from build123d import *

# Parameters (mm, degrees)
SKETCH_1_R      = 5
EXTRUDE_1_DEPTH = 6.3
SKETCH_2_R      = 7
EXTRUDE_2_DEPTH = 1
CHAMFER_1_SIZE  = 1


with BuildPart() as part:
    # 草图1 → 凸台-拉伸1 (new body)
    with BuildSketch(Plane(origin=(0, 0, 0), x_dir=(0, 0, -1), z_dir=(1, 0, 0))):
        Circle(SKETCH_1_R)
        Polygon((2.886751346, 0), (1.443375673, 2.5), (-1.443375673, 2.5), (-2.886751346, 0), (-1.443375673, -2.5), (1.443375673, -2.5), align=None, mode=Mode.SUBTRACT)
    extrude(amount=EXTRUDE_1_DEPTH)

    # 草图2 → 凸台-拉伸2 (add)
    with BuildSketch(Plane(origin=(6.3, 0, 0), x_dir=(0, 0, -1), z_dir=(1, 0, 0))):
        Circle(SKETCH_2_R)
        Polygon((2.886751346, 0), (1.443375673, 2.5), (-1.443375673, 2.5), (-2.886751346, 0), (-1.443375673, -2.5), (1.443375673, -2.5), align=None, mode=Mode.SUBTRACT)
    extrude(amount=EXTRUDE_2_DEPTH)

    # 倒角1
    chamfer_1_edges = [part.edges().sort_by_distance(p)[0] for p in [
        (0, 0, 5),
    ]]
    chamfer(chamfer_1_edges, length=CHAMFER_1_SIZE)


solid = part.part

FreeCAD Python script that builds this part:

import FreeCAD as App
import Part
import Sketcher

V = App.Vector
Q = App.Units.Quantity


def edges_at(feature, points):
    """Names of the edges that pass closest to the given points."""
    edges = feature.Shape.Edges
    near = lambda p: min(range(len(edges)), key=lambda i: edges[i].distToShape(Part.Vertex(*p))[0])
    return sorted({f"Edge{near(p) + 1}" for p in points})

doc = App.newDocument("Part")
body = doc.addObject("PartDesign::Body", "Body")

sketch1 = body.newObject("Sketcher::SketchObject", "Sketch")
sketch1.AttachmentSupport = (doc.getObject("YZ_Plane"), [""])
sketch1.MapMode = "FlatFace"
sketch1.addGeometry(Part.Circle(V(0, 0, 0), V(0, 0, 1), 5), False)
sketch1.addGeometry(Part.LineSegment(V(2.5, -1.4, 0), V(0, -2.9, 0)), False)
sketch1.addGeometry(Part.LineSegment(V(0, -2.9, 0), V(-2.5, -1.4, 0)), False)
sketch1.addGeometry(Part.LineSegment(V(-2.5, -1.4, 0), V(-2.5, 1.4, 0)), False)
sketch1.addGeometry(Part.LineSegment(V(-2.5, 1.4, 0), V(0, 2.9, 0)), False)
sketch1.addGeometry(Part.LineSegment(V(0, 2.9, 0), V(2.5, 1.4, 0)), False)
sketch1.addGeometry(Part.LineSegment(V(2.5, 1.4, 0), V(2.5, -1.4, 0)), False)
sketch1.addConstraint(Sketcher.Constraint("Coincident", 1, 2, 2, 1))
sketch1.addConstraint(Sketcher.Constraint("Coincident", 2, 2, 3, 1))
sketch1.addConstraint(Sketcher.Constraint("Coincident", 3, 2, 4, 1))
sketch1.addConstraint(Sketcher.Constraint("Coincident", 4, 2, 5, 1))
sketch1.addConstraint(Sketcher.Constraint("Coincident", 5, 2, 6, 1))
sketch1.addConstraint(Sketcher.Constraint("Coincident", 6, 2, 1, 1))
sketch1.addConstraint(Sketcher.Constraint("Vertical", 3))
sketch1.addConstraint(Sketcher.Constraint("Vertical", 6))
sketch1.addConstraint(Sketcher.Constraint("Coincident", 0, 3, -1, 1))
sketch1.addConstraint(Sketcher.Constraint("Symmetric", 1, 2, 4, 2, -1, 1))
sketch1.addConstraint(Sketcher.Constraint("Symmetric", 2, 2, 5, 2, -1, 1))
sketch1.addConstraint(Sketcher.Constraint("PointOnObject", 1, 2, -2))
sketch1.addConstraint(Sketcher.Constraint("Parallel", 1, 4))
sketch1.addConstraint(Sketcher.Constraint("Horizontal", 3, 2, 5, 2))
sketch1.addConstraint(Sketcher.Constraint("Diameter", 0, 10.0))
sketch1.addConstraint(Sketcher.Constraint("Angle", 1, Q("-150 deg")))
sketch1.addConstraint(Sketcher.Constraint("DistanceX", 3, 2, 5, 2, 5.0))
sketch1.addConstraint(Sketcher.Constraint("DistanceY", 3, 1, 3, 2, 2.886751))
pad1 = body.newObject("PartDesign::Pad", "Pad")
pad1.Profile = sketch1
pad1.Length = 6.3

sketch2 = body.newObject("Sketcher::SketchObject", "Sketch001")
sketch2.AttachmentSupport = (doc.getObject("YZ_Plane"), [""])
sketch2.MapMode = "FlatFace"
sketch2.AttachmentOffset = App.Placement(V(0, 0, 6.3), App.Rotation())
sketch2.addGeometry(Part.Circle(V(0, 0, 0), V(0, 0, 1), 7), False)
sketch2.addGeometry(Part.LineSegment(V(2.5, -1.4, 0), V(0, -2.9, 0)), False)
sketch2.addGeometry(Part.LineSegment(V(0, -2.9, 0), V(-2.5, -1.4, 0)), False)
sketch2.addGeometry(Part.LineSegment(V(-2.5, -1.4, 0), V(-2.5, 1.4, 0)), False)
sketch2.addGeometry(Part.LineSegment(V(-2.5, 1.4, 0), V(0, 2.9, 0)), False)
sketch2.addGeometry(Part.LineSegment(V(0, 2.9, 0), V(2.5, 1.4, 0)), False)
sketch2.addGeometry(Part.LineSegment(V(2.5, 1.4, 0), V(2.5, -1.4, 0)), False)
sketch2.addConstraint(Sketcher.Constraint("Coincident", 1, 2, 2, 1))
sketch2.addConstraint(Sketcher.Constraint("Coincident", 2, 2, 3, 1))
sketch2.addConstraint(Sketcher.Constraint("Coincident", 3, 2, 4, 1))
sketch2.addConstraint(Sketcher.Constraint("Coincident", 4, 2, 5, 1))
sketch2.addConstraint(Sketcher.Constraint("Coincident", 5, 2, 6, 1))
sketch2.addConstraint(Sketcher.Constraint("Coincident", 6, 2, 1, 1))
sketch2.addConstraint(Sketcher.Constraint("Vertical", 3))
sketch2.addConstraint(Sketcher.Constraint("Vertical", 6))
sketch2.addConstraint(Sketcher.Constraint("Coincident", 0, 3, -1, 1))
sketch2.addConstraint(Sketcher.Constraint("Symmetric", 1, 2, 4, 2, -1, 1))
sketch2.addConstraint(Sketcher.Constraint("Symmetric", 2, 2, 5, 2, -1, 1))
sketch2.addConstraint(Sketcher.Constraint("PointOnObject", 1, 2, -2))
sketch2.addConstraint(Sketcher.Constraint("Parallel", 1, 4))
sketch2.addConstraint(Sketcher.Constraint("Horizontal", 3, 2, 5, 2))
sketch2.addConstraint(Sketcher.Constraint("Diameter", 0, 14.0))
sketch2.addConstraint(Sketcher.Constraint("Angle", 1, Q("-150 deg")))
sketch2.addConstraint(Sketcher.Constraint("DistanceX", 3, 2, 5, 2, 5.0))
sketch2.addConstraint(Sketcher.Constraint("DistanceY", 3, 1, 3, 2, 2.886751))
pad2 = body.newObject("PartDesign::Pad", "Pad001")
pad2.Profile = sketch2
pad2.Length = 1
doc.recompute()

chamfer = body.newObject("PartDesign::Chamfer", "Chamfer")
chamfer.Base = (pad2, edges_at(pad2, [(0, 0, 5)]))
chamfer.Size = 1

doc.recompute()
